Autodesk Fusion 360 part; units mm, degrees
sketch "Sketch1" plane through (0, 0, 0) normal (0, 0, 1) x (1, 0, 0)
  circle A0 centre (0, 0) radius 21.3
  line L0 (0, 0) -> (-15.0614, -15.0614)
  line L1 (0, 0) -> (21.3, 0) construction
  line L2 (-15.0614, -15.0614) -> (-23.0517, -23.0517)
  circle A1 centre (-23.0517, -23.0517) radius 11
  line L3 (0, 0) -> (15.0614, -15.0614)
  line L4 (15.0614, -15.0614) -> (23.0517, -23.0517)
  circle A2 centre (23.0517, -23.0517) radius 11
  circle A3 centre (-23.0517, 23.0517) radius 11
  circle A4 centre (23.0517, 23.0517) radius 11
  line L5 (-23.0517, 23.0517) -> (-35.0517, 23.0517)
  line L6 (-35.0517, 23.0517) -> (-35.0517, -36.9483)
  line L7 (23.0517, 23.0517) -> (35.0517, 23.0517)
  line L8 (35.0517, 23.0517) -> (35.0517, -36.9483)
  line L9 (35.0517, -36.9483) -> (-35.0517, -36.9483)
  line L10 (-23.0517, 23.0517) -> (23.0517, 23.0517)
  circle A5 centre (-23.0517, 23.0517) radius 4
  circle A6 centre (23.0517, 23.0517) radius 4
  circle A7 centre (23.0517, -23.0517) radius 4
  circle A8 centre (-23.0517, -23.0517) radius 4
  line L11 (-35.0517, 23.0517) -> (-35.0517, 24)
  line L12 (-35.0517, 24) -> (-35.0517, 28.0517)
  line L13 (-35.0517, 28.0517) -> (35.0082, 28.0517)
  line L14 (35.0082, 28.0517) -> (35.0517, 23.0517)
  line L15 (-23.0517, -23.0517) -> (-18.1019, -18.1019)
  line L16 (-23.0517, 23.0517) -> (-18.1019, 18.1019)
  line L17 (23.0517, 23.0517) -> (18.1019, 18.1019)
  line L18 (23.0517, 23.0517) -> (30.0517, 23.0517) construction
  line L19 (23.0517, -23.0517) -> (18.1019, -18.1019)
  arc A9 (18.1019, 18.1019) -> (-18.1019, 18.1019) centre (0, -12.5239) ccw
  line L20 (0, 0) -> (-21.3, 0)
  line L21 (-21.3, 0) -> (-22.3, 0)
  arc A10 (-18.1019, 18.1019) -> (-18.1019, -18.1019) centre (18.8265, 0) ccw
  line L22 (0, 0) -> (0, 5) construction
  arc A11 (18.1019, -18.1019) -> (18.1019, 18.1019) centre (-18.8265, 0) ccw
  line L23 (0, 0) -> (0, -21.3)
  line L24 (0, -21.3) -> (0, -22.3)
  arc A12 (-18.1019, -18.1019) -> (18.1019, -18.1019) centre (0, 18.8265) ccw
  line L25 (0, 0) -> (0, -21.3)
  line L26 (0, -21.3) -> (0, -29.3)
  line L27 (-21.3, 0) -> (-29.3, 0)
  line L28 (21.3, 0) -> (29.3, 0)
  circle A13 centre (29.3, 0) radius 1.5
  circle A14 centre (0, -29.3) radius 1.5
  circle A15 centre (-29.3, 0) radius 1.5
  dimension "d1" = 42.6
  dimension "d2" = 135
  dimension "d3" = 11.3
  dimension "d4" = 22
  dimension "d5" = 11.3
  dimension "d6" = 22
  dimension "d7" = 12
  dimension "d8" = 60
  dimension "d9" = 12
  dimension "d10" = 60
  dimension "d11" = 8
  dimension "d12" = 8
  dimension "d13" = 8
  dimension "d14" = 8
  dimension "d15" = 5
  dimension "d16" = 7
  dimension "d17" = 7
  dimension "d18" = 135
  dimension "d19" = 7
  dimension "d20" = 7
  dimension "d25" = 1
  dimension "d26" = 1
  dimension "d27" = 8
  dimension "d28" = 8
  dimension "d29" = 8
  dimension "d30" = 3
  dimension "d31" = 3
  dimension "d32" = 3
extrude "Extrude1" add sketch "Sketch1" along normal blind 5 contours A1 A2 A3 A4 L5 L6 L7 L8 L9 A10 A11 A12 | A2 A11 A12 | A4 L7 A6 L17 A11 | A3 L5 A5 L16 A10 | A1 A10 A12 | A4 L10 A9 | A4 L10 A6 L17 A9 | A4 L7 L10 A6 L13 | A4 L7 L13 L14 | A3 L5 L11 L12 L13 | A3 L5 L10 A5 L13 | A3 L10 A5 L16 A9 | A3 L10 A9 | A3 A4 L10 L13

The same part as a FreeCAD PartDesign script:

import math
import FreeCAD as App
import Part
import Sketcher


def add_polygon(sketch, points):
    """Adds a closed chain of lines whose ends are joined by coincident constraints."""
    first, n = sketch.GeometryCount, len(points)
    for a, b in zip(points, points[1:] + points[:1]):
        sketch.addGeometry(Part.LineSegment(App.Vector(*a, 0), App.Vector(*b, 0)), False)
    for i in range(n):
        sketch.addConstraint(Sketcher.Constraint("Coincident", first + i, 2, first + (i + 1) % n, 1))

doc = App.newDocument("Part")
body = doc.addObject("PartDesign::Body", "Body")

# Sketch on XY plane
sketch1 = body.newObject("Sketcher::SketchObject", "Sketch")
sketch1.AttachmentSupport = (doc.getObject("XY_Plane"), [""])
sketch1.MapMode = "FlatFace"
add_polygon(sketch1, [(35.1, -36.9), (35.1, 23.1), (35, 28.1), (-35.1, 28.1), (-35.1, -36.9)])  # lines 0-4
sketch1.addGeometry(Part.ArcOfCircle(Part.Circle(App.Vector(-18.8, 0, 0), App.Vector(0, 0, 1), 41.1), math.radians(-26), math.radians(0)), False)  # 5
sketch1.addGeometry(Part.ArcOfCircle(Part.Circle(App.Vector(0, 18.8, 0), App.Vector(0, 0, 1), 41.1), math.radians(-90), math.radians(-64)), False)  # 6
sketch1.addGeometry(Part.ArcOfCircle(Part.Circle(App.Vector(0, 18.8, 0), App.Vector(0, 0, 1), 41.1), math.radians(-116), math.radians(-90)), False)  # 7
sketch1.addGeometry(Part.ArcOfCircle(Part.Circle(App.Vector(18.8, 0, 0), App.Vector(0, 0, 1), 41.1), math.radians(180), math.radians(206)), False)  # 8
sketch1.addGeometry(Part.ArcOfCircle(Part.Circle(App.Vector(18.8, 0, 0), App.Vector(0, 0, 1), 41.1), math.radians(154), math.radians(180)), False)  # 9
sketch1.addGeometry(Part.ArcOfCircle(Part.Circle(App.Vector(0, -12.5, 0), App.Vector(0, 0, 1), 35.6), math.radians(59), math.radians(121)), False)  # 10
sketch1.addGeometry(Part.ArcOfCircle(Part.Circle(App.Vector(-18.8, 0, 0), App.Vector(0, 0, 1), 41.1), math.radians(0), math.radians(26)), False)  # 11
sketch1.addGeometry(Part.Circle(App.Vector(0, -29.3, 0), App.Vector(0, 0, 1), 1.5), False)  # 12
sketch1.addGeometry(Part.Circle(App.Vector(-29.3, 0, 0), App.Vector(0, 0, 1), 1.5), False)  # 13
sketch1.addGeometry(Part.Circle(App.Vector(29.3, 0, 0), App.Vector(0, 0, 1), 1.5), False)  # 14
sketch1.addGeometry(Part.Circle(App.Vector(23.1, 23.1, 0), App.Vector(0, 0, 1), 4), False)  # 15
sketch1.addGeometry(Part.Circle(App.Vector(-23.1, 23.1, 0), App.Vector(0, 0, 1), 4), False)  # 16
sketch1.addGeometry(Part.Circle(App.Vector(-23.1, -23.1, 0), App.Vector(0, 0, 1), 4), False)  # 17
sketch1.addGeometry(Part.Circle(App.Vector(23.1, -23.1, 0), App.Vector(0, 0, 1), 4), False)  # 18
sketch1.addConstraint([
    Sketcher.Constraint("Coincident", 5, 1, 6, 2),
    Sketcher.Constraint("Tangent", 6, 1, 7, 2),
    Sketcher.Constraint("Coincident", 7, 1, 8, 2),
    Sketcher.Constraint("Tangent", 8, 1, 9, 2),
    Sketcher.Constraint("Coincident", 9, 1, 10, 2),
    Sketcher.Constraint("Coincident", 10, 1, 11, 2),
    Sketcher.Constraint("Tangent", 11, 1, 5, 2),
    Sketcher.Constraint("Vertical", 0),
    Sketcher.Constraint("Horizontal", 2),
    Sketcher.Constraint("Vertical", 3),
    Sketcher.Constraint("Horizontal", 4),
    Sketcher.Constraint("Equal", 5, 6),
    Sketcher.Constraint("Equal", 6, 7),
    Sketcher.Constraint("Equal", 7, 8),
    Sketcher.Constraint("Equal", 8, 9),
    Sketcher.Constraint("Equal", 9, 11),
    Sketcher.Constraint("Equal", 12, 13),
    Sketcher.Constraint("Equal", 13, 14),
    Sketcher.Constraint("Equal", 15, 16),
    Sketcher.Constraint("Equal", 16, 17),
    Sketcher.Constraint("Equal", 17, 18),
    Sketcher.Constraint("Symmetric", 5, 3, 8, 3, -1, 1),
    Sketcher.Constraint("Symmetric", 13, 3, 14, 3, -1, 1),
    Sketcher.Constraint("Symmetric", 15, 3, 17, 3, -1, 1),
    Sketcher.Constraint("Symmetric", 16, 3, 18, 3, -1, 1),
    Sketcher.Constraint("Symmetric", 15, 3, 16, 3, -2),
    Sketcher.Constraint("Symmetric", 5, 1, 7, 1, -2),
    Sketcher.Constraint("PointOnObject", 10, 3, -2),
    Sketcher.Constraint("PointOnObject", 12, 3, -2),
    Sketcher.Constraint("PointOnObject", 13, 3, -1),
    Sketcher.Constraint("PointOnObject", 6, 1, -2),
    Sketcher.Constraint("PointOnObject", 8, 1, -1),
    Sketcher.Constraint("PointOnObject", 11, 1, -1),
    Sketcher.Constraint("Horizontal", 16, 3, 0, 2),
    Sketcher.Constraint("Vertical", 7, 1, 9, 1),
    Sketcher.Constraint("Diameter", 12, 3.0),
    Sketcher.Constraint("Diameter", 15, 8.0),
    Sketcher.Constraint("DistanceY", 0, 1, 0, 2, 60.0),
    Sketcher.Constraint("DistanceX", 15, 3, 0, 2, 12.0),
    Sketcher.Constraint("DistanceY", 0, 2, 1, 2, 5.0),
    Sketcher.Constraint("DistanceX", 2, 2, 16, 3, 12.0),
    Sketcher.Constraint("DistanceY", 12, 3, 6, 1, 7.0),
    Sketcher.Constraint("DistanceX", 13, 3, 8, 1, 7.0),
    Sketcher.Constraint("Distance", 1, 5.0002),
    Sketcher.Constraint("DistanceX", 2, 2, 2, 1, 70.06),
    Sketcher.Constraint("DistanceY", 12, 3, -1, 1, 29.3),
    Sketcher.Constraint("DistanceX", 13, 3, -1, 1, 29.3),
    Sketcher.Constraint("Radius", 5, 41.1265),
    Sketcher.Constraint("Radius", 10, 35.5755),
    Sketcher.Constraint("DistanceY", -1, 1, 15, 3, 23.0517),
])
pad1 = body.newObject("PartDesign::Pad", "Pad")
pad1.Profile = sketch1
pad1.Length = 5

doc.recompute()
